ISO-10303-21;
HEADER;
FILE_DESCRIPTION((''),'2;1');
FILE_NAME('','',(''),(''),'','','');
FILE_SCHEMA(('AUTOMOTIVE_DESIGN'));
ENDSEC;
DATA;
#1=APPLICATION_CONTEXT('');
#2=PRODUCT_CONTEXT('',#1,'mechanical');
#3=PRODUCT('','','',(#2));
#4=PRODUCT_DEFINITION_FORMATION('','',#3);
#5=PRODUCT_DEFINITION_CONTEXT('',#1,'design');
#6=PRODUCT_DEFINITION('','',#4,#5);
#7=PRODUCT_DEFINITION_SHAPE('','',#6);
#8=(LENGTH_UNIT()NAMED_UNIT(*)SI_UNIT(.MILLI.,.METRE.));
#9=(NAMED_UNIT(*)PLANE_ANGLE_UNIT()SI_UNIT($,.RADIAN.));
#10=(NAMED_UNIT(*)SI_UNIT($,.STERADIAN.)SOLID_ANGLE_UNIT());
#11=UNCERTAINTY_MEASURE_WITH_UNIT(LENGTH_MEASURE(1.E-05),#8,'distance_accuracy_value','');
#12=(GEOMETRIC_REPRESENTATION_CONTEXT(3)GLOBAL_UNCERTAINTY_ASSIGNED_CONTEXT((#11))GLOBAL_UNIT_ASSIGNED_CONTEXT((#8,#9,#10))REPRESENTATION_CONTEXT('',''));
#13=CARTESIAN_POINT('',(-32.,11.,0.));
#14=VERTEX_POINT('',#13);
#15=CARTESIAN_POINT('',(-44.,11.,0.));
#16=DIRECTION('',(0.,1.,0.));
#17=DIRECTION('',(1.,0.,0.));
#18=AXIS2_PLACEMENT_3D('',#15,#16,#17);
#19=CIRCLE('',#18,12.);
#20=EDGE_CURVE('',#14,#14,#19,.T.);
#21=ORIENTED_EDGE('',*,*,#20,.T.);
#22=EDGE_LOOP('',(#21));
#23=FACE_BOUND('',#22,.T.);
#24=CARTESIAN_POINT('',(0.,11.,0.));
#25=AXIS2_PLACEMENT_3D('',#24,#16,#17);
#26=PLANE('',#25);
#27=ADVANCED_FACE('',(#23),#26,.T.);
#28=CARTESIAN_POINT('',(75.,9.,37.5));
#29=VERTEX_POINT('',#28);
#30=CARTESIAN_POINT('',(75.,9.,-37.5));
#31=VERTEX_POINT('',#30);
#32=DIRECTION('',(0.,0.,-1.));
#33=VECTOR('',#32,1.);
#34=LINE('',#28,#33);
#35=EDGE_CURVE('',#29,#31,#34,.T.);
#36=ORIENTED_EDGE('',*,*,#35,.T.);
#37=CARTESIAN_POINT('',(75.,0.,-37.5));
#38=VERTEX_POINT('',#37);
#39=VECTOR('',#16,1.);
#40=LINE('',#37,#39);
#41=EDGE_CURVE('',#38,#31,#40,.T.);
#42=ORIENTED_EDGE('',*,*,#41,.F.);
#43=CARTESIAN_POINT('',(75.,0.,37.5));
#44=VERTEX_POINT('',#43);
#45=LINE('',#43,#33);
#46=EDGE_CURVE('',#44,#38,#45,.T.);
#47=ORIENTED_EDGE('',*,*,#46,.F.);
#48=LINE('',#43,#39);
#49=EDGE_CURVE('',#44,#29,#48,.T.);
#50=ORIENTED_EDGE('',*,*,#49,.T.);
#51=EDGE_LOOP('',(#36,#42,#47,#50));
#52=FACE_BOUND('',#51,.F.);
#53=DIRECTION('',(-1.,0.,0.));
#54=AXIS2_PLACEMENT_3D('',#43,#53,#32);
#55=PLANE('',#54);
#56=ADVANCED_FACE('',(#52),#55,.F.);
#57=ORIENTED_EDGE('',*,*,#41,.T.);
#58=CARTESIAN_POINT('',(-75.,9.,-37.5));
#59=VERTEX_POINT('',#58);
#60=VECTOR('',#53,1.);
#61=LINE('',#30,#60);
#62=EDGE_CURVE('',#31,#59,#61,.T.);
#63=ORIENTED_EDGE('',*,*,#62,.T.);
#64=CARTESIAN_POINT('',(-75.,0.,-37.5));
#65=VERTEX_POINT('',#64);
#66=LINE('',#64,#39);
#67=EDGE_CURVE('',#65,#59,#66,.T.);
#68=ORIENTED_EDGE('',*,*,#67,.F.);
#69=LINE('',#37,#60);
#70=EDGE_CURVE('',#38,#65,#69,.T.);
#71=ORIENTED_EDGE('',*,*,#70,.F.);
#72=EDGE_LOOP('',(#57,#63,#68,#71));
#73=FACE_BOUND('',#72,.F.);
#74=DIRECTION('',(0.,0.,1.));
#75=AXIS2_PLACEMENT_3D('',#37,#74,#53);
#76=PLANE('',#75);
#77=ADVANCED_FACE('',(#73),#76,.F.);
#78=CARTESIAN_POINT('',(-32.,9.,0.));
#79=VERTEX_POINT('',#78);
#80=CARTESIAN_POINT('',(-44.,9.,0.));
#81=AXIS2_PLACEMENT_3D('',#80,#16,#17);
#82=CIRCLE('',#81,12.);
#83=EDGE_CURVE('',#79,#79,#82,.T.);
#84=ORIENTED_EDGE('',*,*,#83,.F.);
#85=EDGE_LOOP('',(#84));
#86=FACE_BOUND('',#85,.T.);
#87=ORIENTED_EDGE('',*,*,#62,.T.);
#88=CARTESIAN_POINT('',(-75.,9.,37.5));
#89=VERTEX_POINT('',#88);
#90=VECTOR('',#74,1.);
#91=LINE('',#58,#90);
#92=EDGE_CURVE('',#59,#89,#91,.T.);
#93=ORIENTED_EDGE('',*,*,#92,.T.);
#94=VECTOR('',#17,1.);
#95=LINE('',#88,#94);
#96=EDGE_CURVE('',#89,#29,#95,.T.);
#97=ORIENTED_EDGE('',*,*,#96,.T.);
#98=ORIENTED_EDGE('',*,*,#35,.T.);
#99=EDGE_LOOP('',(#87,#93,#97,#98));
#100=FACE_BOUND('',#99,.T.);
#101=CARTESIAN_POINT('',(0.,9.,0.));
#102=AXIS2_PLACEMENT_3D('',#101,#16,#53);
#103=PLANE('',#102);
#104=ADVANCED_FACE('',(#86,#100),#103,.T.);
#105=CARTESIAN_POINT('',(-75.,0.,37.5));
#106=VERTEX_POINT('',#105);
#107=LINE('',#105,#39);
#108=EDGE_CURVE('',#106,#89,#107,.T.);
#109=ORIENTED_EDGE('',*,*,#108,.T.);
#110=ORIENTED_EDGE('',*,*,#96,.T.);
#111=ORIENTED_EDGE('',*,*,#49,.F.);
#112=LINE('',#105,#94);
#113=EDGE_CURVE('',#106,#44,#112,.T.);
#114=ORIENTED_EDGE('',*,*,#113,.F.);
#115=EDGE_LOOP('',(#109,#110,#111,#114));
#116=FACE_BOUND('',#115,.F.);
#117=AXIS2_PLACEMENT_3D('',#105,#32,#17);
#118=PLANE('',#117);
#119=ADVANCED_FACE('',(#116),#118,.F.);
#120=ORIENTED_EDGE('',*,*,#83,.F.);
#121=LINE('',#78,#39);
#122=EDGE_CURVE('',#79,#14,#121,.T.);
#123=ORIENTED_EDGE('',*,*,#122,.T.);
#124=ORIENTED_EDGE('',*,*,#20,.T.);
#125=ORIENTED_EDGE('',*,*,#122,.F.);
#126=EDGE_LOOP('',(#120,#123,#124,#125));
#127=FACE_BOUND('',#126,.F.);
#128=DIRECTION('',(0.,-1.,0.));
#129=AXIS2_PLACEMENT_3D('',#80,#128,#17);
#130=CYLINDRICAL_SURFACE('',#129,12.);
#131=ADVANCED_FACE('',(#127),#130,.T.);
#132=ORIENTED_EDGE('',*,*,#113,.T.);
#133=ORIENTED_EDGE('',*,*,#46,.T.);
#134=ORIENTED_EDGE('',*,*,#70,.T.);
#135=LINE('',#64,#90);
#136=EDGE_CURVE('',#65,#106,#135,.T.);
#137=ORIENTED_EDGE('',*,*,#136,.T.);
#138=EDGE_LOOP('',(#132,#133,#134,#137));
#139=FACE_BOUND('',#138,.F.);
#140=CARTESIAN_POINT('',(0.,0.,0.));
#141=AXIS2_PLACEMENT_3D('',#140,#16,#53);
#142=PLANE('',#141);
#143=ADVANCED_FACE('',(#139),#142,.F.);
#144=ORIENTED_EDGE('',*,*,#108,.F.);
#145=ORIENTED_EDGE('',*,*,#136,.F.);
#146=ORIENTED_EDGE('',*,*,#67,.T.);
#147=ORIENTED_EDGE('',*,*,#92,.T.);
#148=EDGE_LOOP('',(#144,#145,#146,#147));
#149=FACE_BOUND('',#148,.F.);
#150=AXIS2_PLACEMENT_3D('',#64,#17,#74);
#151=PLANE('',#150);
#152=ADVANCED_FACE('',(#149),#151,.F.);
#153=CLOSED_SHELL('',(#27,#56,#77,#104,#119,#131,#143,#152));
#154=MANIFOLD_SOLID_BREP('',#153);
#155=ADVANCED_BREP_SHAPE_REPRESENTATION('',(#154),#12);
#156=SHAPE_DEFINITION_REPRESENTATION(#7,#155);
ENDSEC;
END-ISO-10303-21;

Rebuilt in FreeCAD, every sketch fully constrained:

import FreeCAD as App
import Part
import Sketcher
from FreeCAD import Vector

doc = App.newDocument("Part")
params = doc.addObject("Spreadsheet::Sheet", "Params")
for row, (alias, value) in enumerate([
    ("sketch1_width", "150 mm"),
    ("sketch1_height", "75 mm"),
    ("pad1_length", "9 mm"),
    ("sketch2_diameter", "24 mm"),
    ("pad2_length", "2 mm"),
], start=1):
    params.set(f"A{row}", alias)
    params.set(f"B{row}", "=" + value)
    params.setAlias(f"B{row}", alias)

body = doc.addObject("PartDesign::Body", "Body")

sketch1 = body.newObject("Sketcher::SketchObject", "Sketch")
sketch1.AttachmentSupport = (doc.getObject("XZ_Plane"), [""])
sketch1.MapMode = "FlatFace"
sketch1.addGeometry(Part.LineSegment(Vector(-75, -38, 0), Vector(-75, 38, 0)), False)
sketch1.addGeometry(Part.LineSegment(Vector(-75, 38, 0), Vector(75, 38, 0)), False)
sketch1.addGeometry(Part.LineSegment(Vector(75, 38, 0), Vector(75, -38, 0)), False)
sketch1.addGeometry(Part.LineSegment(Vector(75, -38, 0), Vector(-75, -38, 0)), False)
sketch1.addConstraint(Sketcher.Constraint("Coincident", 0, 2, 1, 1))
sketch1.addConstraint(Sketcher.Constraint("Coincident", 1, 2, 2, 1))
sketch1.addConstraint(Sketcher.Constraint("Coincident", 2, 2, 3, 1))
sketch1.addConstraint(Sketcher.Constraint("Coincident", 3, 2, 0, 1))
sketch1.addConstraint(Sketcher.Constraint("Vertical", 0))
sketch1.addConstraint(Sketcher.Constraint("Horizontal", 1))
sketch1.addConstraint(Sketcher.Constraint("Vertical", 2))
sketch1.addConstraint(Sketcher.Constraint("Horizontal", 3))
sketch1.addConstraint(Sketcher.Constraint("Symmetric", 0, 2, 2, 2, -1, 1))
sketch1.addConstraint(Sketcher.Constraint("DistanceX", 1, 1, 1, 2, 150.0))
sketch1.addConstraint(Sketcher.Constraint("DistanceY", 0, 1, 0, 2, 75.0))
sketch1.setExpression("Constraints[9]", "Params.sketch1_width")
sketch1.setExpression("Constraints[10]", "Params.sketch1_height")
pad1 = body.newObject("PartDesign::Pad", "Pad")
pad1.Profile = sketch1
pad1.setExpression("Length", "Params.pad1_length")
pad1.Reversed = True

sketch2 = body.newObject("Sketcher::SketchObject", "Sketch001")
sketch2.AttachmentSupport = (doc.getObject("XZ_Plane"), [""])
sketch2.MapMode = "FlatFace"
sketch2.AttachmentOffset = App.Placement(Vector(0, 0, -9), App.Rotation())
sketch2.addGeometry(Part.Circle(Vector(-44, 0, 0), Vector(0, 0, 1), 12), False)
sketch2.addConstraint(Sketcher.Constraint("PointOnObject", 0, 3, -1))
sketch2.addConstraint(Sketcher.Constraint("Diameter", 0, 24.0))
sketch2.addConstraint(Sketcher.Constraint("DistanceX", 0, 3, -1, 1, 44.0))
sketch2.setExpression("Constraints[1]", "Params.sketch2_diameter")
pad2 = body.newObject("PartDesign::Pad", "Pad001")
pad2.Profile = sketch2
pad2.setExpression("Length", "Params.pad2_length")
pad2.Reversed = True

doc.recompute()
